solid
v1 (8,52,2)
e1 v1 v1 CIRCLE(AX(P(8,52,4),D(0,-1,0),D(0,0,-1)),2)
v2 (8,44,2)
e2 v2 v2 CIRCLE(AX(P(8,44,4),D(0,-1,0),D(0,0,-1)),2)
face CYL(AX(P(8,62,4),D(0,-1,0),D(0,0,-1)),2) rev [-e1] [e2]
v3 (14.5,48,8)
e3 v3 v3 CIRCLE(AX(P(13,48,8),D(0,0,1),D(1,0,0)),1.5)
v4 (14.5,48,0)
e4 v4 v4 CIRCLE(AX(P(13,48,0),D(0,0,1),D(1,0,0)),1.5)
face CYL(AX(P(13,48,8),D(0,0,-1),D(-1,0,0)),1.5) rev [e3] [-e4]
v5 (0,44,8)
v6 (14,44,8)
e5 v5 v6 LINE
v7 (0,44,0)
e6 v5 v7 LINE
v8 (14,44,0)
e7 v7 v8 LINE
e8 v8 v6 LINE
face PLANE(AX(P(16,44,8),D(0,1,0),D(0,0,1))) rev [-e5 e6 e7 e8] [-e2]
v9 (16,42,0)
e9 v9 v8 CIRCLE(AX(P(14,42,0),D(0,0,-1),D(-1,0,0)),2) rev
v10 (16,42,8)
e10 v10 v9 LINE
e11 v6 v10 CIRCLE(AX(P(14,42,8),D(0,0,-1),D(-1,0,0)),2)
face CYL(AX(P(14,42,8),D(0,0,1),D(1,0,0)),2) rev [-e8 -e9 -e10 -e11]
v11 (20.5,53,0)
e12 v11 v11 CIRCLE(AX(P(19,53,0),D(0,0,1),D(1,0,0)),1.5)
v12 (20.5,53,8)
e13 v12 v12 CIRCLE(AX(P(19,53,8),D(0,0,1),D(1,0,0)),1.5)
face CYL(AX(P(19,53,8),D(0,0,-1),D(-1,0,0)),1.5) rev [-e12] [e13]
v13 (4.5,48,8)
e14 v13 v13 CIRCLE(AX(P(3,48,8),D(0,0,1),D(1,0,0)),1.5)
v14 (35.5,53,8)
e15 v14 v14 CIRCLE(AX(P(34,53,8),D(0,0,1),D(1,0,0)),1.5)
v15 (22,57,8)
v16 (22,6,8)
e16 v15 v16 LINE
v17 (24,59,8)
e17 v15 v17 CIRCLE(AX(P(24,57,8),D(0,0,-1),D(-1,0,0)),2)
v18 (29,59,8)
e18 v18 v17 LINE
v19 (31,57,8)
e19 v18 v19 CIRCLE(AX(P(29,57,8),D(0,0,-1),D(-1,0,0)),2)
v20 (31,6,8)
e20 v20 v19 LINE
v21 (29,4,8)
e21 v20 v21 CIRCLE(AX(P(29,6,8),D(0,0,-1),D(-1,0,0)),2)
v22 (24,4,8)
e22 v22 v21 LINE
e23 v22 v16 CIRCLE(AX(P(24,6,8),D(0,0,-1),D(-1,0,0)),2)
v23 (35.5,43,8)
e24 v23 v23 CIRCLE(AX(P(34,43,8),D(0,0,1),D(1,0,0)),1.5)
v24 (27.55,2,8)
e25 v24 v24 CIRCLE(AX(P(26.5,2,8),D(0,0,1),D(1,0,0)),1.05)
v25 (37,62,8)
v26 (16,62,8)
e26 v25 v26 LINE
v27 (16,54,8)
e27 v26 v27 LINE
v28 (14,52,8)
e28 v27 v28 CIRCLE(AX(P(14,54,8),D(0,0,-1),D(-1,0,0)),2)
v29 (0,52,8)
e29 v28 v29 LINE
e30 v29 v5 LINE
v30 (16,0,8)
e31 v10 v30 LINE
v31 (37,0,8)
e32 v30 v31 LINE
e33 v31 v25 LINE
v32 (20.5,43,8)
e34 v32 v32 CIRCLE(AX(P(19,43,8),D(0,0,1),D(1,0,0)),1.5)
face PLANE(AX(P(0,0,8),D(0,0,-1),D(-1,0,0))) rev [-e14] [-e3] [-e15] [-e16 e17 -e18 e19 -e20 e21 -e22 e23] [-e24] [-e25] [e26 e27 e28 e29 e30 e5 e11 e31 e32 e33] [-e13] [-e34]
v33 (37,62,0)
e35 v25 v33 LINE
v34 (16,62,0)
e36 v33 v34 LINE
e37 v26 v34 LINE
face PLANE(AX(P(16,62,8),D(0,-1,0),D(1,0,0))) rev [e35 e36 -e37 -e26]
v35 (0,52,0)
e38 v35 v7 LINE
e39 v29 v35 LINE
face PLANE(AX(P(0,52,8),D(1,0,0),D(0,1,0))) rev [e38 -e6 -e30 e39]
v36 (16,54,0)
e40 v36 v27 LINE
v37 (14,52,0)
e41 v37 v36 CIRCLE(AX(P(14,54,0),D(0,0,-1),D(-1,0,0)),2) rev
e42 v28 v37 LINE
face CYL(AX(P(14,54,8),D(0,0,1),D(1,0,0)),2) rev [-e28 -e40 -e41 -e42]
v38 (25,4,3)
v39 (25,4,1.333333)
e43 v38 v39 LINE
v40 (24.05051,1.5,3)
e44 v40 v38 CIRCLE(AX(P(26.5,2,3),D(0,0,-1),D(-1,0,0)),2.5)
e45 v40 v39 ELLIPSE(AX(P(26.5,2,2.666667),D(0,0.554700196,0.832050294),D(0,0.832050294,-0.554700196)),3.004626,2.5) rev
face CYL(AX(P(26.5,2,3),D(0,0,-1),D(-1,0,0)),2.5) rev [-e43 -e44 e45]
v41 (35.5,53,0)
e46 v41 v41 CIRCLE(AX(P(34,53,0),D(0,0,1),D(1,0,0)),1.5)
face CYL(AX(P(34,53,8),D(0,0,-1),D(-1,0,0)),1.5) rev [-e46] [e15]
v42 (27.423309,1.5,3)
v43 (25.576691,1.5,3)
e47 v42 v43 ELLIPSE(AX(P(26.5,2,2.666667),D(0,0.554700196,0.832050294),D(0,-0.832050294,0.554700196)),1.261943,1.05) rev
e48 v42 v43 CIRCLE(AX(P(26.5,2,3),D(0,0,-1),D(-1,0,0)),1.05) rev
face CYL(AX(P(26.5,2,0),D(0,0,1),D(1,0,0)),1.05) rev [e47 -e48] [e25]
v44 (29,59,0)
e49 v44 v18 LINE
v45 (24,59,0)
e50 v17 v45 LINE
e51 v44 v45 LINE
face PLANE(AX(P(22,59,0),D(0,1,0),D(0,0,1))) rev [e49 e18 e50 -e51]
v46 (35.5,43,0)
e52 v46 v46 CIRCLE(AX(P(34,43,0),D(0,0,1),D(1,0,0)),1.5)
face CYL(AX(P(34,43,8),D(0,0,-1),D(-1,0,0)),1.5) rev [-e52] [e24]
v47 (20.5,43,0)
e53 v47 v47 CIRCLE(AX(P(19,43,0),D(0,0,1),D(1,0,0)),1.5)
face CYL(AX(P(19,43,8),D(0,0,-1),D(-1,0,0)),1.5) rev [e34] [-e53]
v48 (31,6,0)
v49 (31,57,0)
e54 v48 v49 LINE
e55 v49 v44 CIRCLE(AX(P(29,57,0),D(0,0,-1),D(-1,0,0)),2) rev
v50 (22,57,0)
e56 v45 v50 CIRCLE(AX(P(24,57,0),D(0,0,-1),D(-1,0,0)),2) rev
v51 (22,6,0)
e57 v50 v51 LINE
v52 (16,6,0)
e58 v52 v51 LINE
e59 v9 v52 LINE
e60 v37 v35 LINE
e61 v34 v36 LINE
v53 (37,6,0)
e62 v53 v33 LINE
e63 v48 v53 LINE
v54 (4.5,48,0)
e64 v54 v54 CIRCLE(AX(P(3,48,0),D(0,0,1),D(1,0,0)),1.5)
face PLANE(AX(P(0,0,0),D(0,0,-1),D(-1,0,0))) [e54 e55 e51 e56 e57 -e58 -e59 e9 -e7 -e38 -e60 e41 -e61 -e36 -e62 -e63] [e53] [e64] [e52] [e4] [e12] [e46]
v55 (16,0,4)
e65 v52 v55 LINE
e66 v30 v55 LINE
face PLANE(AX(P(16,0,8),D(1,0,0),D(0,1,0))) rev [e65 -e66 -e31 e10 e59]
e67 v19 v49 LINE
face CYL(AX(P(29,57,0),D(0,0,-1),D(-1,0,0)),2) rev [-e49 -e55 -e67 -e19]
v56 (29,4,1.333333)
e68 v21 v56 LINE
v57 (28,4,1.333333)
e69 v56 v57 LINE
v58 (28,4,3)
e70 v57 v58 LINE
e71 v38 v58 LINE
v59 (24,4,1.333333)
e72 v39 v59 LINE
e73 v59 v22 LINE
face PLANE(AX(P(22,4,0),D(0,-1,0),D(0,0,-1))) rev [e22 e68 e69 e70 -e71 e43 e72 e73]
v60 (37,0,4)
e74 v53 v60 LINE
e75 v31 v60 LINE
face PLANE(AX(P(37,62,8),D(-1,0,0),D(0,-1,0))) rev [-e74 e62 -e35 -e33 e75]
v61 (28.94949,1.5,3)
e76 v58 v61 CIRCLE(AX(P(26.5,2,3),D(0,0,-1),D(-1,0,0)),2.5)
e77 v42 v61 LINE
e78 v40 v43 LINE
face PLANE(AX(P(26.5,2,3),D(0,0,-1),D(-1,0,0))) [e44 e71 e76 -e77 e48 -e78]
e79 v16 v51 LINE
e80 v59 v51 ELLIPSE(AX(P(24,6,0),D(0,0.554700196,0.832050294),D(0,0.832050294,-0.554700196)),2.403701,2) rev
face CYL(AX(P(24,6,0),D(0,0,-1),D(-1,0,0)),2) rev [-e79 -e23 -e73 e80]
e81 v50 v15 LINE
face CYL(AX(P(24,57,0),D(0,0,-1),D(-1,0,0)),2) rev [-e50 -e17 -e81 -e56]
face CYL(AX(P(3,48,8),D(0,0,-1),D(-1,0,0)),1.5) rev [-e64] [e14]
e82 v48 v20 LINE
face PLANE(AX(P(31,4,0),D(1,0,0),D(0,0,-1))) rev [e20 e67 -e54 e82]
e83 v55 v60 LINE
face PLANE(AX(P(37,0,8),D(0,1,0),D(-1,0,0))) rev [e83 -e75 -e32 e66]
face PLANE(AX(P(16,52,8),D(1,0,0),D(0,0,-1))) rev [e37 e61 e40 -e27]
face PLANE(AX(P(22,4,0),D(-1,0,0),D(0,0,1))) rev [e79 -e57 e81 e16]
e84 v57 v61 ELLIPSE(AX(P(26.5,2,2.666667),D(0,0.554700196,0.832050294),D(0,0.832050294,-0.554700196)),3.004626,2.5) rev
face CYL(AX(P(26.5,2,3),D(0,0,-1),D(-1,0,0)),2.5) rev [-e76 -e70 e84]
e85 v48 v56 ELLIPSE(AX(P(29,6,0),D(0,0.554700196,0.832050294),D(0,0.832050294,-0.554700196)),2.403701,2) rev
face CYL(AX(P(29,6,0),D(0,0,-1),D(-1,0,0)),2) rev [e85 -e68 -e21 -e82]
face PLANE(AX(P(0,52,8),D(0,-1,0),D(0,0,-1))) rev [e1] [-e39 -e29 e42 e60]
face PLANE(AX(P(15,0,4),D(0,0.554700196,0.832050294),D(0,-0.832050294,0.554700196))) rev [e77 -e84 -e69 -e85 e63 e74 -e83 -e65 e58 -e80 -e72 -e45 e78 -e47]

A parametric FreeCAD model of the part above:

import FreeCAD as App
import Part
import Sketcher
Q = App.Units.Quantity


def edges_at(feature, points):
    """Names of the edges that pass closest to the given points."""
    edges = feature.Shape.Edges
    near = lambda p: min(range(len(edges)), key=lambda i: edges[i].distToShape(Part.Vertex(*p))[0])
    return sorted({f"Edge{near(p) + 1}" for p in points})

doc = App.newDocument("Part")
body = doc.addObject("PartDesign::Body", "Body")

# Sketch on XY plane
sketch1 = body.newObject("Sketcher::SketchObject", "Sketch")
sketch1.AttachmentSupport = (doc.getObject("XY_Plane"), [""])
sketch1.MapMode = "FlatFace"
sketch1.addGeometry([
    Part.LineSegment(App.Vector(37, 0, 0), App.Vector(37, 62, 0)),  # 0
    Part.LineSegment(App.Vector(37, 62, 0), App.Vector(16, 62, 0)),  # 1
    Part.LineSegment(App.Vector(16, 62, 0), App.Vector(16, 52, 0)),  # 2
    Part.LineSegment(App.Vector(16, 52, 0), App.Vector(0, 52, 0)),  # 3
    Part.LineSegment(App.Vector(0, 52, 0), App.Vector(0, 44, 0)),  # 4
    Part.LineSegment(App.Vector(0, 44, 0), App.Vector(16, 44, 0)),  # 5
    Part.LineSegment(App.Vector(16, 44, 0), App.Vector(16, 0, 0)),  # 6
    Part.LineSegment(App.Vector(16, 0, 0), App.Vector(37, 0, 0)),  # 7
    Part.Circle(App.Vector(34, 43, 0), App.Vector(0, 0, 1), 1.5),  # 8
    Part.Circle(App.Vector(19, 43, 0), App.Vector(0, 0, 1), 1.5),  # 9
    Part.Circle(App.Vector(34, 53, 0), App.Vector(0, 0, 1), 1.5),  # 10
    Part.Circle(App.Vector(19, 53, 0), App.Vector(0, 0, 1), 1.5),  # 11
    Part.Circle(App.Vector(13, 48, 0), App.Vector(0, 0, 1), 1.5),  # 12
    Part.Circle(App.Vector(3, 48, 0), App.Vector(0, 0, 1), 1.5),  # 13
], False)
sketch1.addConstraint([
    Sketcher.Constraint("Coincident", 0, 2, 1, 1),
    Sketcher.Constraint("Coincident", 1, 2, 2, 1),
    Sketcher.Constraint("Coincident", 2, 2, 3, 1),
    Sketcher.Constraint("Coincident", 3, 2, 4, 1),
    Sketcher.Constraint("Coincident", 4, 2, 5, 1),
    Sketcher.Constraint("Coincident", 5, 2, 6, 1),
    Sketcher.Constraint("Coincident", 6, 2, 7, 1),
    Sketcher.Constraint("Coincident", 7, 2, 0, 1),
    Sketcher.Constraint("Vertical", 0),
    Sketcher.Constraint("Horizontal", 1),
    Sketcher.Constraint("Vertical", 2),
    Sketcher.Constraint("Horizontal", 3),
    Sketcher.Constraint("Vertical", 4),
    Sketcher.Constraint("Horizontal", 5),
    Sketcher.Constraint("Vertical", 6),
    Sketcher.Constraint("Horizontal", 7),
    Sketcher.Constraint("Equal", 8, 9),
    Sketcher.Constraint("Equal", 9, 10),
    Sketcher.Constraint("Equal", 10, 11),
    Sketcher.Constraint("Equal", 11, 12),
    Sketcher.Constraint("Equal", 12, 13),
    Sketcher.Constraint("PointOnObject", 3, 2, -2),
    Sketcher.Constraint("PointOnObject", 6, 2, -1),
    Sketcher.Constraint("Horizontal", 8, 3, 9, 3),
    Sketcher.Constraint("Horizontal", 10, 3, 11, 3),
    Sketcher.Constraint("Horizontal", 12, 3, 13, 3),
    Sketcher.Constraint("Vertical", 8, 3, 10, 3),
    Sketcher.Constraint("Vertical", 9, 3, 11, 3),
    Sketcher.Constraint("Vertical", 2, 2, 5, 2),
    Sketcher.Constraint("Diameter", 8, Q("3 mm")),
    Sketcher.Constraint("DistanceX", 1, 2, 1, 1, Q("21 mm")),
    Sketcher.Constraint("DistanceX", 3, 2, 3, 1, Q("16 mm")),
    Sketcher.Constraint("DistanceY", 0, 1, 0, 2, Q("62 mm")),
    Sketcher.Constraint("DistanceY", 2, 2, 2, 1, Q("10 mm")),
    Sketcher.Constraint("DistanceY", 4, 2, 4, 1, Q("8 mm")),
    Sketcher.Constraint("DistanceX", -1, 1, 8, 3, Q("34 mm")),
    Sketcher.Constraint("DistanceY", -1, 1, 8, 3, Q("43 mm")),
    Sketcher.Constraint("DistanceX", -1, 1, 9, 3, Q("19 mm")),
    Sketcher.Constraint("DistanceY", -1, 1, 10, 3, Q("53 mm")),
    Sketcher.Constraint("DistanceX", -1, 1, 12, 3, Q("13 mm")),
    Sketcher.Constraint("DistanceY", -1, 1, 12, 3, Q("48 mm")),
    Sketcher.Constraint("DistanceX", -1, 1, 13, 3, Q("3 mm")),
])
pad1 = body.newObject("PartDesign::Pad", "Pad")
pad1.Profile = sketch1
pad1.Length = 8
doc.recompute()

fillet = body.newObject("PartDesign::Fillet", "Fillet")
fillet.Base = (pad1, edges_at(pad1, [(16, 52, 4), (16, 44, 4)]))
fillet.Radius = 2

# Sketch on XY plane
sketch2 = body.newObject("Sketcher::SketchObject", "Sketch001")
sketch2.AttachmentSupport = (doc.getObject("XY_Plane"), [""])
sketch2.MapMode = "FlatFace"
sketch2.AttachmentOffset = App.Placement(App.Vector(0, 0, 8), App.Rotation())
sketch2.addGeometry([
    Part.LineSegment(App.Vector(22, 59, 0), App.Vector(22, 4, 0)),
    Part.LineSegment(App.Vector(22, 4, 0), App.Vector(31, 4, 0)),
    Part.LineSegment(App.Vector(31, 4, 0), App.Vector(31, 59, 0)),
    Part.LineSegment(App.Vector(31, 59, 0), App.Vector(22, 59, 0)),
], False)
sketch2.addConstraint([
    Sketcher.Constraint("Coincident", 0, 2, 1, 1),
    Sketcher.Constraint("Coincident", 1, 2, 2, 1),
    Sketcher.Constraint("Coincident", 2, 2, 3, 1),
    Sketcher.Constraint("Coincident", 3, 2, 0, 1),
    Sketcher.Constraint("Vertical", 0),
    Sketcher.Constraint("Horizontal", 1),
    Sketcher.Constraint("Vertical", 2),
    Sketcher.Constraint("Horizontal", 3),
    Sketcher.Constraint("DistanceX", 1, 1, 1, 2, Q("9 mm")),
    Sketcher.Constraint("DistanceY", 0, 2, 0, 1, Q("55 mm")),
    Sketcher.Constraint("DistanceX", -1, 1, 0, 2, Q("22 mm")),
    Sketcher.Constraint("DistanceY", -1, 1, 0, 2, Q("4 mm")),
])
pocket1 = body.newObject("PartDesign::Pocket", "Pocket")
pocket1.Profile = sketch2
pocket1.Type = "ThroughAll"
doc.recompute()

fillet2 = body.newObject("PartDesign::Fillet", "Fillet001")
fillet2.Base = (pocket1, edges_at(pocket1, [
    (31, 59, 4),
    (31, 4, 4),
    (22, 4, 4),
    (22, 59, 4),
]))
fillet2.Radius = 2

# Sketch on XZ plane
sketch3 = body.newObject("Sketcher::SketchObject", "Sketch002")
sketch3.AttachmentSupport = (doc.getObject("XZ_Plane"), [""])
sketch3.MapMode = "FlatFace"
sketch3.AttachmentOffset = App.Placement(App.Vector(0, 0, -44), App.Rotation())
sketch3.addGeometry(Part.Circle(App.Vector(8, 4, 0), App.Vector(0, 0, 1), 2), False)
sketch3.addConstraint([
    Sketcher.Constraint("Diameter", 0, Q("4 mm")),
    Sketcher.Constraint("DistanceX", -1, 1, 0, 3, Q("8 mm")),
    Sketcher.Constraint("DistanceY", -1, 1, 0, 3, Q("4 mm")),
])
pocket2 = body.newObject("PartDesign::Pocket", "Pocket001")
pocket2.Profile = sketch3
pocket2.Type = "ThroughAll"

# Sketch on XY plane
sketch4 = body.newObject("Sketcher::SketchObject", "Sketch003")
sketch4.AttachmentSupport = (doc.getObject("XY_Plane"), [""])
sketch4.MapMode = "FlatFace"
sketch4.AttachmentOffset = App.Placement(App.Vector(0, 0, 8), App.Rotation())
sketch4.addGeometry(Part.Circle(App.Vector(26.5, 2, 0), App.Vector(0, 0, 1), 1.1), False)
sketch4.addConstraint([
    Sketcher.Constraint("Diameter", 0, Q("2.1 mm")),
    Sketcher.Constraint("DistanceY", -1, 1, 0, 3, Q("2 mm")),
    Sketcher.Constraint("DistanceX", -1, 1, 0, 3, Q("26.5 mm")),
])
pocket3 = body.newObject("PartDesign::Pocket", "Pocket002")
pocket3.Profile = sketch4
pocket3.Type = "ThroughAll"

# Sketch on XY plane
sketch5 = body.newObject("Sketcher::SketchObject", "Sketch004")
sketch5.AttachmentSupport = (doc.getObject("XY_Plane"), [""])
sketch5.MapMode = "FlatFace"
sketch5.addGeometry(Part.Circle(App.Vector(26.5, 2, 0), App.Vector(0, 0, 1), 2.5), False)
sketch5.addConstraint([
    Sketcher.Constraint("Diameter", 0, Q("5 mm")),
    Sketcher.Constraint("DistanceY", -1, 1, 0, 3, Q("2 mm")),
    Sketcher.Constraint("DistanceX", -1, 1, 0, 3, Q("26.5 mm")),
])
pocket4 = body.newObject("PartDesign::Pocket", "Pocket003")
pocket4.Profile = sketch5
pocket4.Length = 3
pocket4.Reversed = True

# Sketch on YZ plane
sketch6 = body.newObject("Sketcher::SketchObject", "Sketch005")
sketch6.AttachmentSupport = (doc.getObject("YZ_Plane"), [""])
sketch6.MapMode = "FlatFace"
sketch6.AttachmentOffset = App.Placement(App.Vector(0, 0, 37), App.Rotation())
sketch6.addGeometry([
    Part.LineSegment(App.Vector(6, 0, 0), App.Vector(0, 4, 0)),
    Part.LineSegment(App.Vector(0, 4, 0), App.Vector(0, 0, 0)),
    Part.LineSegment(App.Vector(0, 0, 0), App.Vector(6, 0, 0)),
], False)
sketch6.addConstraint([
    Sketcher.Constraint("Coincident", 0, 2, 1, 1),
    Sketcher.Constraint("Coincident", 1, 2, 2, 1),
    Sketcher.Constraint("Coincident", 2, 2, 0, 1),
    Sketcher.Constraint("Vertical", 1),
    Sketcher.Constraint("Horizontal", 2),
    Sketcher.Constraint("Coincident", 1, 2, -1, 1),
    Sketcher.Constraint("DistanceX", 2, 1, 2, 2, Q("6 mm")),
    Sketcher.Constraint("DistanceY", 1, 2, 1, 1, Q("4 mm")),
])
pocket5 = body.newObject("PartDesign::Pocket", "Pocket004")
pocket5.Profile = sketch6
pocket5.Length = 22

doc.recompute()
